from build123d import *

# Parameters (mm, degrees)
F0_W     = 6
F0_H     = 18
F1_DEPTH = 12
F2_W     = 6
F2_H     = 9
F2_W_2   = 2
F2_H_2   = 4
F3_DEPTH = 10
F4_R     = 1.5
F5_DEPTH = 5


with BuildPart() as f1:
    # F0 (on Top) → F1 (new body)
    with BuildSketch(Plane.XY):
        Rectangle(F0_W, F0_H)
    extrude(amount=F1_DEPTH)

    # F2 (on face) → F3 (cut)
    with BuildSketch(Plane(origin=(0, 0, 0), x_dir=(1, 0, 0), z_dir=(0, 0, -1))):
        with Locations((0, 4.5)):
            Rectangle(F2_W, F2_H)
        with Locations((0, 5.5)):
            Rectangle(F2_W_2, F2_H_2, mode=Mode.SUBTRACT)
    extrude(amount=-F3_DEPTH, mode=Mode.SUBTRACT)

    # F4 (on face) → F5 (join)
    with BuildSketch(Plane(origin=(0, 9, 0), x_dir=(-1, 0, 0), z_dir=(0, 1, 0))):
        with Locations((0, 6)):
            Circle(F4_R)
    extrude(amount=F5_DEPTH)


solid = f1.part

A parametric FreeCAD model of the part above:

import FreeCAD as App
import Part
import Sketcher
from FreeCAD import Vector


def add_polygon(sketch, points):
    """Adds a closed chain of lines whose ends are joined by coincident constraints."""
    first, n = sketch.GeometryCount, len(points)
    for a, b in zip(points, points[1:] + points[:1]):
        sketch.addGeometry(Part.LineSegment(App.Vector(*a, 0), App.Vector(*b, 0)), False)
    for i in range(n):
        sketch.addConstraint(Sketcher.Constraint("Coincident", first + i, 2, first + (i + 1) % n, 1))

doc = App.newDocument("Part")
body = doc.addObject("PartDesign::Body", "Body")

# Sketch on XY plane
sketch1 = body.newObject("Sketcher::SketchObject", "Sketch")
sketch1.AttachmentSupport = (doc.getObject("XY_Plane"), [""])
sketch1.MapMode = "FlatFace"
add_polygon(sketch1, [(-3, 9), (-3, -9), (3, -9), (3, 9)])  # lines 0-3
sketch1.addConstraint([
    Sketcher.Constraint("Vertical", 0),
    Sketcher.Constraint("Horizontal", 1),
    Sketcher.Constraint("Vertical", 2),
    Sketcher.Constraint("Horizontal", 3),
    Sketcher.Constraint("Symmetric", 0, 2, 2, 2, -1, 1),
    Sketcher.Constraint("DistanceX", 1, 1, 1, 2, 6.0),
    Sketcher.Constraint("DistanceY", 0, 2, 0, 1, 18.0),
])
pad1 = body.newObject("PartDesign::Pad", "Pad")
pad1.Profile = sketch1
pad1.Length = 12

# Sketch on XY plane
sketch2 = body.newObject("Sketcher::SketchObject", "Sketch001")
sketch2.AttachmentSupport = (doc.getObject("XY_Plane"), [""])
sketch2.MapMode = "FlatFace"
add_polygon(sketch2, [(-3, -9), (-3, 0), (3, 0), (3, -9)])  # lines 0-3
add_polygon(sketch2, [(1, -3.5), (-1, -3.5), (-1, -7.5), (1, -7.5)])  # lines 4-7
sketch2.addConstraint([
    Sketcher.Constraint("Vertical", 0),
    Sketcher.Constraint("Horizontal", 1),
    Sketcher.Constraint("Vertical", 2),
    Sketcher.Constraint("Horizontal", 3),
    Sketcher.Constraint("Horizontal", 4),
    Sketcher.Constraint("Vertical", 5),
    Sketcher.Constraint("Horizontal", 6),
    Sketcher.Constraint("Vertical", 7),
    Sketcher.Constraint("Symmetric", 0, 2, 1, 2, -1, 1),
    Sketcher.Constraint("DistanceX", 1, 1, 1, 2, 6.0),
    Sketcher.Constraint("DistanceX", 4, 2, 4, 1, 2.0),
    Sketcher.Constraint("DistanceY", 0, 1, 0, 2, 9.0),
    Sketcher.Constraint("DistanceY", 5, 2, 5, 1, 4.0),
    Sketcher.Constraint("DistanceX", 4, 2, -1, 1, 1.0),
    Sketcher.Constraint("DistanceY", 4, 2, -1, 1, 3.5),
])
pocket1 = body.newObject("PartDesign::Pocket", "Pocket")
pocket1.Profile = sketch2
pocket1.Length = 10
pocket1.Reversed = True

# Sketch on XZ plane
sketch3 = body.newObject("Sketcher::SketchObject", "Sketch002")
sketch3.AttachmentSupport = (doc.getObject("XZ_Plane"), [""])
sketch3.MapMode = "FlatFace"
sketch3.AttachmentOffset = App.Placement(Vector(0, 0, -9), App.Rotation())
sketch3.addGeometry(Part.Circle(Vector(0, 6, 0), Vector(0, 0, 1), 1.5), False)
sketch3.addConstraint([
    Sketcher.Constraint("PointOnObject", 0, 3, -2),
    Sketcher.Constraint("Diameter", 0, 3.0),
    Sketcher.Constraint("DistanceY", -1, 1, 0, 3, 6.0),
])
pad2 = body.newObject("PartDesign::Pad", "Pad001")
pad2.Profile = sketch3
pad2.Length = 5
pad2.Reversed = True

doc.recompute()
